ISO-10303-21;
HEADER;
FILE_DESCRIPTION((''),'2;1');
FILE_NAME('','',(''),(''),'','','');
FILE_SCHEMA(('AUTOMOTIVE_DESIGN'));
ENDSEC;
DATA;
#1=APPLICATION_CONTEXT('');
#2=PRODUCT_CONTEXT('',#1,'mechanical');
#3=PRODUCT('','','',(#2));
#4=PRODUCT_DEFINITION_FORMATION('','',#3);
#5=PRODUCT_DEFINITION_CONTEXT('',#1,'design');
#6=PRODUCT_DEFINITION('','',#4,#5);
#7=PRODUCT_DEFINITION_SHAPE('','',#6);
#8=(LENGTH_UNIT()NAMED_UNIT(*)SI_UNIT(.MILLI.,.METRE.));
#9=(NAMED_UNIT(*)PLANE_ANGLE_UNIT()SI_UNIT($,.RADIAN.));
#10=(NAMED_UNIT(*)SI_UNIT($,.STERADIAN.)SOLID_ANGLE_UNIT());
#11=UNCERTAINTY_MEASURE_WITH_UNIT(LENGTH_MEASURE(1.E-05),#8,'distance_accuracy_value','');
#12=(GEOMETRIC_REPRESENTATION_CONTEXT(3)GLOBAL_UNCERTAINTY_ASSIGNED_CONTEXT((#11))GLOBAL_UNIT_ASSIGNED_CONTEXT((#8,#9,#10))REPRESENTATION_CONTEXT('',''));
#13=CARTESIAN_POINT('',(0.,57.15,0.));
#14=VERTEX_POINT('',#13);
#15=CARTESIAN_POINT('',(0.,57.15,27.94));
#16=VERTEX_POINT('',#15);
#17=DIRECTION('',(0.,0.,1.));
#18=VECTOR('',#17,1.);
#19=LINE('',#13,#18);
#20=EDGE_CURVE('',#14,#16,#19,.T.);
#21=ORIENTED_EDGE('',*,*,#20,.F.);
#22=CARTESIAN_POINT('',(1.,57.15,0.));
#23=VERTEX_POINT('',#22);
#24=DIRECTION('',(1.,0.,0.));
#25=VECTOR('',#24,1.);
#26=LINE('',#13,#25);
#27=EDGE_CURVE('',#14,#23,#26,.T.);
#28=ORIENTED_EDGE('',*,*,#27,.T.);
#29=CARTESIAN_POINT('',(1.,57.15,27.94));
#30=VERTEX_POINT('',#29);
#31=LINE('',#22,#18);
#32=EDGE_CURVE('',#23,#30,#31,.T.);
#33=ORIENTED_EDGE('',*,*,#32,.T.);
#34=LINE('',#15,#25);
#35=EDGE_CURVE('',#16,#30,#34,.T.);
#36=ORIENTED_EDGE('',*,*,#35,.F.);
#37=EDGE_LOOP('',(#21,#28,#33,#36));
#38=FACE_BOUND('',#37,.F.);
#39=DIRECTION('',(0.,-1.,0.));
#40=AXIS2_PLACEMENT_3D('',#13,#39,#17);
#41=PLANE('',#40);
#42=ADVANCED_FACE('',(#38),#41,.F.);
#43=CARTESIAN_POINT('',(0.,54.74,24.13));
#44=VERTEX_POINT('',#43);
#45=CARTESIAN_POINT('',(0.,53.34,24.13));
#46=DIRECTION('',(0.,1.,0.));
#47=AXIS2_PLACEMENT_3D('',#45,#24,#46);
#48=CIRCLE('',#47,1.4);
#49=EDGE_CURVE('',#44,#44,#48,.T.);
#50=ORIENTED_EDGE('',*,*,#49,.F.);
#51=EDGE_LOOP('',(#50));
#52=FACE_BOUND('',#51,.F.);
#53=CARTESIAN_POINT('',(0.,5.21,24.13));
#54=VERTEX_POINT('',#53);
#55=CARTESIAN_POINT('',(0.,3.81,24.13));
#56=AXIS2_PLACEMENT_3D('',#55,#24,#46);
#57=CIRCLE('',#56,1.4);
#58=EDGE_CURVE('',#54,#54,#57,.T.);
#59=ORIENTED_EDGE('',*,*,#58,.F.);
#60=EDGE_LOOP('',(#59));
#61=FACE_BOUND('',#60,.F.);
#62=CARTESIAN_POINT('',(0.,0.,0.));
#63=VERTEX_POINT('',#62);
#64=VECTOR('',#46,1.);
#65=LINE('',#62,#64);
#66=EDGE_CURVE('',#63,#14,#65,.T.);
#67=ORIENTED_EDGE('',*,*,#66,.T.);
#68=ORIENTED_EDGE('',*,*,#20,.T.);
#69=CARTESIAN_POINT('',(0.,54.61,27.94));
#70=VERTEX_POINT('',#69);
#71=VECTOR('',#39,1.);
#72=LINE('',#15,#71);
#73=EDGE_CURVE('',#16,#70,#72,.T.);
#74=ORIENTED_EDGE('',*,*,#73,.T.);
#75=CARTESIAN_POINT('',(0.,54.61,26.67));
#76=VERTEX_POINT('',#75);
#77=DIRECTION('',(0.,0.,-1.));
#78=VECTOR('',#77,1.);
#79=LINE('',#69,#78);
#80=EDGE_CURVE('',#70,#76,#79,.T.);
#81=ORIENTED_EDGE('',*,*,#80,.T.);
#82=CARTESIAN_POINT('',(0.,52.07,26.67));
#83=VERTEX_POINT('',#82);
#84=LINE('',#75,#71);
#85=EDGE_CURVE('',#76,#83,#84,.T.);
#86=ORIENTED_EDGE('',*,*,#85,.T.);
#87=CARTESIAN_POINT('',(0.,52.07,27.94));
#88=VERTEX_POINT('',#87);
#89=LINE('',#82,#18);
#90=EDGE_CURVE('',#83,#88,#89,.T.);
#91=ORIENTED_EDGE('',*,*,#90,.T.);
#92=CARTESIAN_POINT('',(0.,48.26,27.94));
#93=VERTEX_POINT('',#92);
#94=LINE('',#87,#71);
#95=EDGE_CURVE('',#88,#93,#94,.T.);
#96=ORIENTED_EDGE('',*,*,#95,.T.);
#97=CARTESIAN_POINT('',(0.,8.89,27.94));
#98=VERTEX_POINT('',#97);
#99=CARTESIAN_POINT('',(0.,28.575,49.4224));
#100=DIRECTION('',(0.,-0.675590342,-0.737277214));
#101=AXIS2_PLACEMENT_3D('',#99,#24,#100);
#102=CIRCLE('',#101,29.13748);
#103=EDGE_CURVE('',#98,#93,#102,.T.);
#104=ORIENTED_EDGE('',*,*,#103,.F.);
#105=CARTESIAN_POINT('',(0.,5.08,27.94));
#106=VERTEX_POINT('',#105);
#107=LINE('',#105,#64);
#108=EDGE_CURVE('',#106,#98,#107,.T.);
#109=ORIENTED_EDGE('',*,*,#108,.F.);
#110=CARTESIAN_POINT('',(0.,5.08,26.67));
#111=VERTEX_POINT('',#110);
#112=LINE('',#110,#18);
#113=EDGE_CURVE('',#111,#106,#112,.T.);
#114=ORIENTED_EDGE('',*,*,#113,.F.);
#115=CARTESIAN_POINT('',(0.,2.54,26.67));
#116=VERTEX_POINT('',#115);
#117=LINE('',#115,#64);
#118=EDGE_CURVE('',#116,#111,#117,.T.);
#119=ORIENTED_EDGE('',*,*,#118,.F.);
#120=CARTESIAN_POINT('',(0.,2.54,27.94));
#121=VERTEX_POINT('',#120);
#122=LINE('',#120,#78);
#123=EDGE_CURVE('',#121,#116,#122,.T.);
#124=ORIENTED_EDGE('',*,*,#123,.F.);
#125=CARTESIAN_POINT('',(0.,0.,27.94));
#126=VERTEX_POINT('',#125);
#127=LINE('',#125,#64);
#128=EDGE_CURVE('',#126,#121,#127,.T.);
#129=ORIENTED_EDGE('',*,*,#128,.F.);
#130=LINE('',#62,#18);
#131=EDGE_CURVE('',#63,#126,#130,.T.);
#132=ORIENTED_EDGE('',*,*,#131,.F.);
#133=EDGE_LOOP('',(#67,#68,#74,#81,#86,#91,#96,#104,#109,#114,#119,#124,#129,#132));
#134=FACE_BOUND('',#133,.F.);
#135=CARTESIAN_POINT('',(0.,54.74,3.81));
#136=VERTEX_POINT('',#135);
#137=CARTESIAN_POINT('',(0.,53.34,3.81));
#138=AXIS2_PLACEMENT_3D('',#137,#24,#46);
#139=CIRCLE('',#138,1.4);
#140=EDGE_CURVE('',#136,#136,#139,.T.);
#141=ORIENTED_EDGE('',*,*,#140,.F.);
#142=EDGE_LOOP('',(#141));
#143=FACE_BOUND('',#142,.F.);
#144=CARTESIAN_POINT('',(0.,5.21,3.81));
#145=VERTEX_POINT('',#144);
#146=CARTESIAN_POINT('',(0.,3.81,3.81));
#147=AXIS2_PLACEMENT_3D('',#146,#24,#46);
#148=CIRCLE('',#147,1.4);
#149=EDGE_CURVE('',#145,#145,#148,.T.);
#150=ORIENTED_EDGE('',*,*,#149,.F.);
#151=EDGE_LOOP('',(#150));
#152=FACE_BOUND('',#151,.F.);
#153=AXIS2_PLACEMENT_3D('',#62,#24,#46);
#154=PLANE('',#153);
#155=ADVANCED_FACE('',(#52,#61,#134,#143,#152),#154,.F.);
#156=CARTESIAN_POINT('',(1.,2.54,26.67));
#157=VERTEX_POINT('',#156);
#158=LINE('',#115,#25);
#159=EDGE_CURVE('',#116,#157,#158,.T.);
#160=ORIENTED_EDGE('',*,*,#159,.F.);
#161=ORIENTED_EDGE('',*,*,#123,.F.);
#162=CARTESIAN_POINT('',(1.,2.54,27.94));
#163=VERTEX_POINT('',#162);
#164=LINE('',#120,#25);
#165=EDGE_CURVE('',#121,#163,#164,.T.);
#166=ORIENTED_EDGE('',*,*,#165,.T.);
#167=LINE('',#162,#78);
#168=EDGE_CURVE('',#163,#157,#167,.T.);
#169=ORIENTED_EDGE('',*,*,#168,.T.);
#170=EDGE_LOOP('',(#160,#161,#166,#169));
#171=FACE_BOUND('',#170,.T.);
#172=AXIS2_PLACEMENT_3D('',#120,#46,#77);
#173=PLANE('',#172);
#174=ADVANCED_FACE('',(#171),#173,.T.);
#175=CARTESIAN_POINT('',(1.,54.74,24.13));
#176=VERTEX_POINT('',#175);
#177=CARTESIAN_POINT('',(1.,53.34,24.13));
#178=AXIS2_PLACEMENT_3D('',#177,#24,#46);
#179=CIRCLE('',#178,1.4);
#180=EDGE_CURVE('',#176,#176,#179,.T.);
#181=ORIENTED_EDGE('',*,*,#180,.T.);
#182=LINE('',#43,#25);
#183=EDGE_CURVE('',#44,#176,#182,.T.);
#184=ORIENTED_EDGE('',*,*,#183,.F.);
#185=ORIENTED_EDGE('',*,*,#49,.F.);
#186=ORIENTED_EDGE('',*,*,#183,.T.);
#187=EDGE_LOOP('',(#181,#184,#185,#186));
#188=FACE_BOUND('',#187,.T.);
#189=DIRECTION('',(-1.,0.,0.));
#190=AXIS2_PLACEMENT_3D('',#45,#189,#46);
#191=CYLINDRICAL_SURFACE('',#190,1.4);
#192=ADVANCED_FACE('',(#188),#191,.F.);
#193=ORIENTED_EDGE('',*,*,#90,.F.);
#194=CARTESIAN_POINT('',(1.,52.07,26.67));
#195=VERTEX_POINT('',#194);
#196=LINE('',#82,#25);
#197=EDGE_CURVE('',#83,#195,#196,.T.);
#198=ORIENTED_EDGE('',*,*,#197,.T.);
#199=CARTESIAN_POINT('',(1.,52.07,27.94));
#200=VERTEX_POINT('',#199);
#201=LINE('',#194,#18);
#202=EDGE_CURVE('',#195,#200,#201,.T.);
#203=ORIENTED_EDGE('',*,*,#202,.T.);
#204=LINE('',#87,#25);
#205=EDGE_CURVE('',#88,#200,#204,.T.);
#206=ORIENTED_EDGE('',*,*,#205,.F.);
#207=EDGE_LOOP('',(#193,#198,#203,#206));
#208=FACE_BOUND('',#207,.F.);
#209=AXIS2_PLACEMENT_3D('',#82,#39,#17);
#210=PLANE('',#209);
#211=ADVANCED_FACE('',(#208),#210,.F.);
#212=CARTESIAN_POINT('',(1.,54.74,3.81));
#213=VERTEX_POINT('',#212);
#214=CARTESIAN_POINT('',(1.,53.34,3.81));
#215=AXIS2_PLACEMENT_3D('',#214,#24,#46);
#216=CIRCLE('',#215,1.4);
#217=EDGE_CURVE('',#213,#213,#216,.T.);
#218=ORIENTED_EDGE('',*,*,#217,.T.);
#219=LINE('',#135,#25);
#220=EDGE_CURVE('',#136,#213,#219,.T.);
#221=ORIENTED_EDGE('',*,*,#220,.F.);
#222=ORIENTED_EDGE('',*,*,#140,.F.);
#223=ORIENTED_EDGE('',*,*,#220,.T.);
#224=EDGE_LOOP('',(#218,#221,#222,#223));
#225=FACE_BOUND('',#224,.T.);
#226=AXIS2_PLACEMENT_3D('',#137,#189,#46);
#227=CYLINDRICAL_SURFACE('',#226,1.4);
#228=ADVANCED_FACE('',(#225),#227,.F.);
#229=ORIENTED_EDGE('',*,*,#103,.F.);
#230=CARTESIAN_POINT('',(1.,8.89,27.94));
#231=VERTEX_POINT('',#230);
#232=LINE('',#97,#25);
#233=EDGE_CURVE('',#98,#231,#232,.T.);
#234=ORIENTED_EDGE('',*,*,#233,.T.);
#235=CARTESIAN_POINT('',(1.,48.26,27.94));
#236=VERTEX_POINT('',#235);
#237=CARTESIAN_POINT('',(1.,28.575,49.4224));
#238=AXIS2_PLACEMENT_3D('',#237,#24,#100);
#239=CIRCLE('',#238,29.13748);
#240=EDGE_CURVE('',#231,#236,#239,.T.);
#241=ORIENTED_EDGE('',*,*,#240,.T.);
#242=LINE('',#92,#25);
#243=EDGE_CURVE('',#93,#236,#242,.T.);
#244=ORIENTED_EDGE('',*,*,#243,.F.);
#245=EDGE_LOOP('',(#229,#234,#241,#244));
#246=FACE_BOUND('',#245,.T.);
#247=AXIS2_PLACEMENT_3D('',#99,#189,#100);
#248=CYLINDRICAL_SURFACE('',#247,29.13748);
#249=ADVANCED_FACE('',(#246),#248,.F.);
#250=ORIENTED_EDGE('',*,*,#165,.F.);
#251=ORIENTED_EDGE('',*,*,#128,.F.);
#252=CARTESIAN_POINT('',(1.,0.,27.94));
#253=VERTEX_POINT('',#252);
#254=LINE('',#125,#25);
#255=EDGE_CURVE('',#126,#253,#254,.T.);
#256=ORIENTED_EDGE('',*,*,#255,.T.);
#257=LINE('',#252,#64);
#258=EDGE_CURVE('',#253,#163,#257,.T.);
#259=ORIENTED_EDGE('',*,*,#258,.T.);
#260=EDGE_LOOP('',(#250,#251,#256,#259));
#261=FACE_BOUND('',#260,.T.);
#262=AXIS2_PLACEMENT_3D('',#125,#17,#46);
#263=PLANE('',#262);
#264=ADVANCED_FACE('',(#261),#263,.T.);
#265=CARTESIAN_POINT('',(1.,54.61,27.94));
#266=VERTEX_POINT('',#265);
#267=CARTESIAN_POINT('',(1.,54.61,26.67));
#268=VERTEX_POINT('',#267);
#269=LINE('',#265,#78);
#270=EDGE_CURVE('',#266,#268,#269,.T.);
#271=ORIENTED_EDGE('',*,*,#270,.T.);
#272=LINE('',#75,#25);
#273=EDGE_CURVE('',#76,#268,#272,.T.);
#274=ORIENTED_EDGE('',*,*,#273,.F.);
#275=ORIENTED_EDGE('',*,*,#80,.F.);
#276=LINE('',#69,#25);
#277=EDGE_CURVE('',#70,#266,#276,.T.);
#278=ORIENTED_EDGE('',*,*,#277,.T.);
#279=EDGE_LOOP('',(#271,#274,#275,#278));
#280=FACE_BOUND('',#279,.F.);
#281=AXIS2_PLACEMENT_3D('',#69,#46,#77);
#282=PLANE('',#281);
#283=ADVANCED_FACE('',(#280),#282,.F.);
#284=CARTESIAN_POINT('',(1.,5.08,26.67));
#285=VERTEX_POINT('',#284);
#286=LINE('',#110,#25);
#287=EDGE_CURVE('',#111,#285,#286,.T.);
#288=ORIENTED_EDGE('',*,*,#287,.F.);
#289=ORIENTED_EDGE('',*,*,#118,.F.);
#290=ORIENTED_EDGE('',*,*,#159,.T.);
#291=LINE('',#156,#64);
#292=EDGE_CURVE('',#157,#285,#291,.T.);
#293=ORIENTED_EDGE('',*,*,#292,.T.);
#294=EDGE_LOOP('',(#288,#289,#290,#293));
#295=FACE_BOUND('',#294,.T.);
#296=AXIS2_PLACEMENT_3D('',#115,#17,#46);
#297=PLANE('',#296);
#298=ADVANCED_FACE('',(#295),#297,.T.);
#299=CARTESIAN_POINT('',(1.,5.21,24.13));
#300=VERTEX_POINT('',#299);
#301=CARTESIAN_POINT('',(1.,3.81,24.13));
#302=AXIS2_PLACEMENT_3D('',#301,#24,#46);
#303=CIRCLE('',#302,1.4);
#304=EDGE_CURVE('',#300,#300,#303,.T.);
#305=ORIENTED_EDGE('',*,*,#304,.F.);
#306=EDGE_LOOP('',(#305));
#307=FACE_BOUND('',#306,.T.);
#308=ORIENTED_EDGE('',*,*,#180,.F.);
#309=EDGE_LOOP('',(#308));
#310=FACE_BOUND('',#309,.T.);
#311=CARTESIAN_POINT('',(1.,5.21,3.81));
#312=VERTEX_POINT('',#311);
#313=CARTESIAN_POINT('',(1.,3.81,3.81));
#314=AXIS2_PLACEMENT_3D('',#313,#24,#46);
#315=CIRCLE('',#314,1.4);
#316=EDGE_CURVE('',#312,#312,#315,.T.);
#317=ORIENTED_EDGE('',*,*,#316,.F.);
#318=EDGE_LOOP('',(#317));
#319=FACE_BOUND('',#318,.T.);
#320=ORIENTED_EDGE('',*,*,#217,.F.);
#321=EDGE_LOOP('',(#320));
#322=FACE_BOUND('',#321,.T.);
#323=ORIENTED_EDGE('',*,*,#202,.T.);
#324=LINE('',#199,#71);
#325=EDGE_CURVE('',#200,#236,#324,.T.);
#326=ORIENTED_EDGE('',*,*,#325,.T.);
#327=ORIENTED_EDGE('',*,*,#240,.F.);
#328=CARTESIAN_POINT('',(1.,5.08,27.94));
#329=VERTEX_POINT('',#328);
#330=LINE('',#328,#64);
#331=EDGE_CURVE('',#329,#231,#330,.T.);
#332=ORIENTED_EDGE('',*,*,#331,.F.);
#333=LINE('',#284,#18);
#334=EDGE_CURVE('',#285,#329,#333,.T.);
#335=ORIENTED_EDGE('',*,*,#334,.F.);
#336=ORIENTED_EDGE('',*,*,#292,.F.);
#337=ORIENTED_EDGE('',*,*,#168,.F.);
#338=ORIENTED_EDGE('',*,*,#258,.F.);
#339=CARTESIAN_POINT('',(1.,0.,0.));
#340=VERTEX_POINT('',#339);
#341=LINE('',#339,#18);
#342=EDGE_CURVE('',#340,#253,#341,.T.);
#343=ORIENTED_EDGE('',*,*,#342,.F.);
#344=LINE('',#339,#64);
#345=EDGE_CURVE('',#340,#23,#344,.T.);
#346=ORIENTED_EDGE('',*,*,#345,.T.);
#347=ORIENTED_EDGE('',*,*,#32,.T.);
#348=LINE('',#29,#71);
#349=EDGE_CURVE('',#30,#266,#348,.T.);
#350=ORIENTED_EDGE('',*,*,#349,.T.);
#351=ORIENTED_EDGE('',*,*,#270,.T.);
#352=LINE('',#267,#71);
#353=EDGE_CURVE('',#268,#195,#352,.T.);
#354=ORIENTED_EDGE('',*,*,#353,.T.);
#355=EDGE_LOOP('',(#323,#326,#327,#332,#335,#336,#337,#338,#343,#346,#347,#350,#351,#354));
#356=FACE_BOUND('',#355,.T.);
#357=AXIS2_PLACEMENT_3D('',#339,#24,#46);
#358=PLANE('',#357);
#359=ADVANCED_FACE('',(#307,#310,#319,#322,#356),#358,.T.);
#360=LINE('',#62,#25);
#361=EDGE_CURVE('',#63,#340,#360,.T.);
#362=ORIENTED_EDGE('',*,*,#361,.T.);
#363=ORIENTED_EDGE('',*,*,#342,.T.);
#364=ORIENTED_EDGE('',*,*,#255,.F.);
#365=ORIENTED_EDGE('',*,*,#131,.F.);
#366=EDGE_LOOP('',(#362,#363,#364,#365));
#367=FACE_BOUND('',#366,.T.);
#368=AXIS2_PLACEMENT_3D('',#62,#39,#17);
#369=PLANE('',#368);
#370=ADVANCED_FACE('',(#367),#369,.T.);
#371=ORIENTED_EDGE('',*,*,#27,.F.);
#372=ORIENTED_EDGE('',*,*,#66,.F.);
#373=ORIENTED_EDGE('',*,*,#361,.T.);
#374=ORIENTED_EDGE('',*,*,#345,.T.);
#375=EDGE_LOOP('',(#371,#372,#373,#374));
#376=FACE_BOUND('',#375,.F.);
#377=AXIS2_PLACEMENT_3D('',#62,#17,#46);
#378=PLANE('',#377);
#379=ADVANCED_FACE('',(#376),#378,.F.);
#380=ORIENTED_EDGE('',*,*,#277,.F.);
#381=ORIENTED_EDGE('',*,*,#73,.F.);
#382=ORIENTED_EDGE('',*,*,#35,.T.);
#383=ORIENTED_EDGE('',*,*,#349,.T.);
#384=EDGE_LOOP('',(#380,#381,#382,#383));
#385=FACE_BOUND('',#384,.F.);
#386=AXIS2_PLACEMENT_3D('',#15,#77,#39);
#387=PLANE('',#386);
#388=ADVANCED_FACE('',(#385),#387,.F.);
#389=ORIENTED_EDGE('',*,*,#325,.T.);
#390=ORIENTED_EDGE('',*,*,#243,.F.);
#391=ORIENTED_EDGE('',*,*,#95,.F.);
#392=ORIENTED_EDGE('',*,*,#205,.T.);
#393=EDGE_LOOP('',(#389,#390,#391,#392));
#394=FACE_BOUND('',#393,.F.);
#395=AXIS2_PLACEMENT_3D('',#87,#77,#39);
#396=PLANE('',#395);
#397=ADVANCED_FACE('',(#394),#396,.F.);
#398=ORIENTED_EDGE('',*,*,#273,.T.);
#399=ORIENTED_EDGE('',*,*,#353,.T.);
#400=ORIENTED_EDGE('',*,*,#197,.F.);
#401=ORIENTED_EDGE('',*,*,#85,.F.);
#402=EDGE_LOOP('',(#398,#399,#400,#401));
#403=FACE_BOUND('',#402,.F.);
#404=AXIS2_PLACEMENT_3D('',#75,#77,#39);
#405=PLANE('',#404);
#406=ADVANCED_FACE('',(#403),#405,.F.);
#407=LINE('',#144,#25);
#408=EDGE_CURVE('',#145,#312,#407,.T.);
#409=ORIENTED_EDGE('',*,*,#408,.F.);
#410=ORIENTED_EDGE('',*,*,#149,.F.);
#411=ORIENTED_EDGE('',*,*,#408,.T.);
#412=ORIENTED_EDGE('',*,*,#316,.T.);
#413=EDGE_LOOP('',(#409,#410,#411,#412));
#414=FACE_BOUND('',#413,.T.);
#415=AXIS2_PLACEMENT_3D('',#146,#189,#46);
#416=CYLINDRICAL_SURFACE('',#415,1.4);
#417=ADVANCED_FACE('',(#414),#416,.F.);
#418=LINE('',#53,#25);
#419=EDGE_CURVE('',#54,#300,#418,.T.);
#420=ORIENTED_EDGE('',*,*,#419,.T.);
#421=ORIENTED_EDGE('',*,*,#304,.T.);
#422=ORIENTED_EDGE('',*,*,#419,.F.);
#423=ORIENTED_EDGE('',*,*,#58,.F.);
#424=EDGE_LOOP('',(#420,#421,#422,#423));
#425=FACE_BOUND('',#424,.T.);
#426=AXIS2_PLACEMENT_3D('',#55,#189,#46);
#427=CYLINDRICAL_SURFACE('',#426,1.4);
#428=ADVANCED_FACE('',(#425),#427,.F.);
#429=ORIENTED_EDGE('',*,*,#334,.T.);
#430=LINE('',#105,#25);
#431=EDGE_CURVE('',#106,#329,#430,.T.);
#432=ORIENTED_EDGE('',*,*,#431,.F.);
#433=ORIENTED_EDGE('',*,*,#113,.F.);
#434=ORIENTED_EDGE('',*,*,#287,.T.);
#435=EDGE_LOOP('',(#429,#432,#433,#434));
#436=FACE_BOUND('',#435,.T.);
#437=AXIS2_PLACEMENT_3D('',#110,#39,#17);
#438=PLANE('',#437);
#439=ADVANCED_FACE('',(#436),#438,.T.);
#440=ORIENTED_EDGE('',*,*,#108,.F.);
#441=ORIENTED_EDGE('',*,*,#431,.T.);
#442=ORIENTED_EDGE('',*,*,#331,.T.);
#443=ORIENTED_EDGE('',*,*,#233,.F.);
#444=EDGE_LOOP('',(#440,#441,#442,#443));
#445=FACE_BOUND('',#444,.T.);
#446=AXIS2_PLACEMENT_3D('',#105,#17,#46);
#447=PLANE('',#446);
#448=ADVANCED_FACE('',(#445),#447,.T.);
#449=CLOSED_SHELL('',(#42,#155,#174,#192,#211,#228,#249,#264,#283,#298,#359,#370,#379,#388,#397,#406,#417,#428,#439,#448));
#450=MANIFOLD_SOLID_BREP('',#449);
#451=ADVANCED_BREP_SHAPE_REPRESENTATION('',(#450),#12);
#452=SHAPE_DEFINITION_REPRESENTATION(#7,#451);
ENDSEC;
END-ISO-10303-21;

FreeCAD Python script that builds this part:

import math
import FreeCAD as App
import Part
import Sketcher
Q = App.Units.Quantity

doc = App.newDocument("Part")
body = doc.addObject("PartDesign::Body", "Body")

sketch1 = body.newObject("Sketcher::SketchObject", "Sketch")
sketch1.AttachmentSupport = (doc.getObject("YZ_Plane"), [""])
sketch1.MapMode = "FlatFace"
sketch1.addGeometry(Part.LineSegment(App.Vector(0, 27.9, 0), App.Vector(0, 0, 0)), False)
sketch1.addGeometry(Part.LineSegment(App.Vector(0, 0, 0), App.Vector(57.1, 0, 0)), False)
sketch1.addGeometry(Part.LineSegment(App.Vector(57.1, 0, 0), App.Vector(57.1, 27.9, 0)), False)
sketch1.addGeometry(Part.LineSegment(App.Vector(57.1, 27.9, 0), App.Vector(54.6, 27.9, 0)), False)
sketch1.addGeometry(Part.LineSegment(App.Vector(54.6, 27.9, 0), App.Vector(54.6, 26.7, 0)), False)
sketch1.addGeometry(Part.LineSegment(App.Vector(54.6, 26.7, 0), App.Vector(52.1, 26.7, 0)), False)
sketch1.addGeometry(Part.LineSegment(App.Vector(52.1, 26.7, 0), App.Vector(52.1, 27.9, 0)), False)
sketch1.addGeometry(Part.LineSegment(App.Vector(52.1, 27.9, 0), App.Vector(48.3, 27.9, 0)), False)
sketch1.addGeometry(Part.ArcOfCircle(Part.Circle(App.Vector(28.6, 49.4, 0), App.Vector(0, 0, 1), 29.1), math.radians(-133), math.radians(-47)), False)
sketch1.addGeometry(Part.LineSegment(App.Vector(8.9, 27.9, 0), App.Vector(5.1, 27.9, 0)), False)
sketch1.addGeometry(Part.LineSegment(App.Vector(5.1, 27.9, 0), App.Vector(5.1, 26.7, 0)), False)
sketch1.addGeometry(Part.LineSegment(App.Vector(5.1, 26.7, 0), App.Vector(2.5, 26.7, 0)), False)
sketch1.addGeometry(Part.LineSegment(App.Vector(2.5, 26.7, 0), App.Vector(2.5, 27.9, 0)), False)
sketch1.addGeometry(Part.LineSegment(App.Vector(2.5, 27.9, 0), App.Vector(0, 27.9, 0)), False)
sketch1.addGeometry(Part.Circle(App.Vector(3.8, 3.8, 0), App.Vector(0, 0, 1), 1.4), False)
sketch1.addGeometry(Part.Circle(App.Vector(53.3, 3.8, 0), App.Vector(0, 0, 1), 1.4), False)
sketch1.addGeometry(Part.Circle(App.Vector(3.8, 24.1, 0), App.Vector(0, 0, 1), 1.4), False)
sketch1.addGeometry(Part.Circle(App.Vector(53.3, 24.1, 0), App.Vector(0, 0, 1), 1.4), False)
sketch1.addConstraint(Sketcher.Constraint("Coincident", 0, 2, 1, 1))
sketch1.addConstraint(Sketcher.Constraint("Coincident", 1, 2, 2, 1))
sketch1.addConstraint(Sketcher.Constraint("Coincident", 2, 2, 3, 1))
sketch1.addConstraint(Sketcher.Constraint("Coincident", 3, 2, 4, 1))
sketch1.addConstraint(Sketcher.Constraint("Coincident", 4, 2, 5, 1))
sketch1.addConstraint(Sketcher.Constraint("Coincident", 5, 2, 6, 1))
sketch1.addConstraint(Sketcher.Constraint("Coincident", 6, 2, 7, 1))
sketch1.addConstraint(Sketcher.Constraint("Coincident", 7, 2, 8, 2))
sketch1.addConstraint(Sketcher.Constraint("Coincident", 8, 1, 9, 1))
sketch1.addConstraint(Sketcher.Constraint("Coincident", 9, 2, 10, 1))
sketch1.addConstraint(Sketcher.Constraint("Coincident", 10, 2, 11, 1))
sketch1.addConstraint(Sketcher.Constraint("Coincident", 11, 2, 12, 1))
sketch1.addConstraint(Sketcher.Constraint("Coincident", 12, 2, 13, 1))
sketch1.addConstraint(Sketcher.Constraint("Coincident", 13, 2, 0, 1))
sketch1.addConstraint(Sketcher.Constraint("Vertical", 0))
sketch1.addConstraint(Sketcher.Constraint("Horizontal", 1))
sketch1.addConstraint(Sketcher.Constraint("Vertical", 2))
sketch1.addConstraint(Sketcher.Constraint("Horizontal", 3))
sketch1.addConstraint(Sketcher.Constraint("Vertical", 4))
sketch1.addConstraint(Sketcher.Constraint("Horizontal", 5))
sketch1.addConstraint(Sketcher.Constraint("Vertical", 6))
sketch1.addConstraint(Sketcher.Constraint("Horizontal", 7))
sketch1.addConstraint(Sketcher.Constraint("Horizontal", 9))
sketch1.addConstraint(Sketcher.Constraint("Vertical", 10))
sketch1.addConstraint(Sketcher.Constraint("Horizontal", 11))
sketch1.addConstraint(Sketcher.Constraint("Vertical", 12))
sketch1.addConstraint(Sketcher.Constraint("Horizontal", 13))
sketch1.addConstraint(Sketcher.Constraint("Coincident", 0, 2, -1, 1))
sketch1.addConstraint(Sketcher.Constraint("Equal", 14, 15))
sketch1.addConstraint(Sketcher.Constraint("Equal", 15, 16))
sketch1.addConstraint(Sketcher.Constraint("Equal", 16, 17))
sketch1.addConstraint(Sketcher.Constraint("Horizontal", 14, 3, 15, 3))
sketch1.addConstraint(Sketcher.Constraint("Horizontal", 16, 3, 17, 3))
sketch1.addConstraint(Sketcher.Constraint("Horizontal", 3, 2, 6, 2))
sketch1.addConstraint(Sketcher.Constraint("Horizontal", 7, 2, 8, 1))
sketch1.addConstraint(Sketcher.Constraint("Horizontal", 5, 2, 10, 2))
sketch1.addConstraint(Sketcher.Constraint("Horizontal", 9, 2, 12, 2))
sketch1.addConstraint(Sketcher.Constraint("Vertical", 14, 3, 16, 3))
sketch1.addConstraint(Sketcher.Constraint("Vertical", 15, 3, 17, 3))
sketch1.addConstraint(Sketcher.Constraint("Equal", 3, 5))
sketch1.addConstraint(Sketcher.Constraint("Equal", 7, 9))
sketch1.addConstraint(Sketcher.Constraint("Equal", 5, 11))
sketch1.addConstraint(Sketcher.Constraint("Equal", 11, 13))
sketch1.addConstraint(Sketcher.Constraint("DistanceX", 3, 2, 3, 1, Q("0.1 in")))
sketch1.addConstraint(Sketcher.Constraint("DistanceY", 0, 2, 0, 1, Q("1.1 in")))
sketch1.addConstraint(Sketcher.Constraint("DistanceX", 1, 1, 1, 2, Q("2.25 in")))
sketch1.addConstraint(Sketcher.Constraint("DistanceX", 7, 2, 7, 1, Q("0.15 in")))
sketch1.addConstraint(Sketcher.Constraint("DistanceY", 4, 2, 4, 1, Q("0.05 in")))
sketch1.addConstraint(Sketcher.Constraint("DistanceY", 14, 3, 16, 3, Q("0.8 in")))
sketch1.addConstraint(Sketcher.Constraint("DistanceY", 17, 3, 4, 2, Q("0.1 in")))
sketch1.addConstraint(Sketcher.Constraint("Diameter", 14, 2.8))
sketch1.addConstraint(Sketcher.Constraint("DistanceX", -1, 1, 14, 3, Q("0.15 in")))
sketch1.addConstraint(Sketcher.Constraint("Radius", 8, 29.1375))
sketch1.addConstraint(Sketcher.Constraint("DistanceX", 15, 3, 1, 2, Q("0.15 in")))
pad1 = body.newObject("PartDesign::Pad", "Pad")
pad1.Profile = sketch1
pad1.Length = 1

doc.recompute()
